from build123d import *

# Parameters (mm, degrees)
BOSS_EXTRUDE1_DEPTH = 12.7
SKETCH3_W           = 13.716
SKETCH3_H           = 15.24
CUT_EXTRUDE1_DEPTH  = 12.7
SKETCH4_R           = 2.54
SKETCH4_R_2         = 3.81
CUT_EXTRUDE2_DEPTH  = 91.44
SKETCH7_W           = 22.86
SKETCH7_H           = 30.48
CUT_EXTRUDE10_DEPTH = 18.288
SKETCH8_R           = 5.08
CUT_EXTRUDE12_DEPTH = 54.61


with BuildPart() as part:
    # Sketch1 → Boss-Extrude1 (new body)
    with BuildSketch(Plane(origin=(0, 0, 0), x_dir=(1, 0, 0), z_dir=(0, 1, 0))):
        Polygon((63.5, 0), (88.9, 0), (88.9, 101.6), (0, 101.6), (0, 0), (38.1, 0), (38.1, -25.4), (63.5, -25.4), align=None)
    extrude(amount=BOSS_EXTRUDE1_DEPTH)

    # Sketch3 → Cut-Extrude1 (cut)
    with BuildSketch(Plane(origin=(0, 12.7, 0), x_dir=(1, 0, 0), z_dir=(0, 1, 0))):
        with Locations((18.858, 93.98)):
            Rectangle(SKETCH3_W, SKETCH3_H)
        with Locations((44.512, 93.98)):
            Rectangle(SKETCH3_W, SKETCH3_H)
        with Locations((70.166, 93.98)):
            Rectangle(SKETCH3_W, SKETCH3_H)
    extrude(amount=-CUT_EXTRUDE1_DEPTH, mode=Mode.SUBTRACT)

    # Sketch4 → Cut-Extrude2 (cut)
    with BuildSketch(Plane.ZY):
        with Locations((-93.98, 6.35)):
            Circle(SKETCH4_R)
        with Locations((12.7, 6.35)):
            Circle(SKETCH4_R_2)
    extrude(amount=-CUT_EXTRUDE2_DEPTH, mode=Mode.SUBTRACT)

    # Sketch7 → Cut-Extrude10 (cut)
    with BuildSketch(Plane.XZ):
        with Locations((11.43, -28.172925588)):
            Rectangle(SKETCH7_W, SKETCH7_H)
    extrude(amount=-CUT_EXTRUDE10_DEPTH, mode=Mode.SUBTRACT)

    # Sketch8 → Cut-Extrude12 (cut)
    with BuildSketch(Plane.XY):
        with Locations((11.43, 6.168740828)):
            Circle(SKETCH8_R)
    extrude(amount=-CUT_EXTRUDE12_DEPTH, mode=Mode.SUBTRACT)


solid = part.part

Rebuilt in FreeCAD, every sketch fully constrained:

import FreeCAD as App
import Part
import Sketcher
Q = App.Units.Quantity


def add_polygon(sketch, points):
    """Adds a closed chain of lines whose ends are joined by coincident constraints."""
    first, n = sketch.GeometryCount, len(points)
    for a, b in zip(points, points[1:] + points[:1]):
        sketch.addGeometry(Part.LineSegment(App.Vector(*a, 0), App.Vector(*b, 0)), False)
    for i in range(n):
        sketch.addConstraint(Sketcher.Constraint("Coincident", first + i, 2, first + (i + 1) % n, 1))

doc = App.newDocument("Part")
body = doc.addObject("PartDesign::Body", "Body")

# Sketch on XZ plane
sketch1 = doc.addObject("Sketcher::SketchObject", "Sketch")
body.addObject(sketch1)
sketch1.AttachmentSupport = (doc.XZ_Plane, [""])
sketch1.MapMode = "FlatFace"
add_polygon(sketch1, [(64, 0), (89, 0), (89, -102), (0, -102), (0, 0), (38, 0), (38, 25), (64, 25)])  # lines 0-7
sketch1.addConstraint([
    Sketcher.Constraint("Horizontal", 0),
    Sketcher.Constraint("Vertical", 1),
    Sketcher.Constraint("Horizontal", 2),
    Sketcher.Constraint("Vertical", 3),
    Sketcher.Constraint("Horizontal", 4),
    Sketcher.Constraint("Vertical", 5),
    Sketcher.Constraint("Horizontal", 6),
    Sketcher.Constraint("Vertical", 7),
    Sketcher.Constraint("Coincident", 3, 2, -1, 1),
    Sketcher.Constraint("PointOnObject", 0, 2, -1),
    Sketcher.Constraint("Equal", 0, 6),
    Sketcher.Constraint("Equal", 6, 5),
    Sketcher.Constraint("DistanceX", 0, 1, 0, 2, Q("1 in")),
    Sketcher.Constraint("DistanceY", 1, 2, 1, 1, Q("4 in")),
    Sketcher.Constraint("DistanceX", 2, 2, 2, 1, Q("3.5 in")),
])
pad1 = doc.addObject("PartDesign::Pad", "Pad")
body.addObject(pad1)
pad1.Profile = sketch1
pad1.Length = Q("0.5 in")
pad1.Reversed = True

# Sketch on XZ plane
sketch2 = doc.addObject("Sketcher::SketchObject", "Sketch001")
body.addObject(sketch2)
sketch2.AttachmentSupport = (doc.XZ_Plane, [""])
sketch2.MapMode = "FlatFace"
sketch2.AttachmentOffset = App.Placement(App.Vector(0, 0, -0.5 * 25.4), App.Rotation())
add_polygon(sketch2, [(12, -102), (12, -86), (26, -86), (26, -102)])  # lines 0-3
add_polygon(sketch2, [(38, -102), (38, -86), (51, -86), (51, -102)])  # lines 4-7
add_polygon(sketch2, [(63, -102), (63, -86), (77, -86), (77, -102)])  # lines 8-11
sketch2.addConstraint([
    Sketcher.Constraint("Vertical", 0),
    Sketcher.Constraint("Horizontal", 1),
    Sketcher.Constraint("Vertical", 2),
    Sketcher.Constraint("Horizontal", 3),
    Sketcher.Constraint("Vertical", 4),
    Sketcher.Constraint("Horizontal", 5),
    Sketcher.Constraint("Vertical", 6),
    Sketcher.Constraint("Horizontal", 7),
    Sketcher.Constraint("Vertical", 8),
    Sketcher.Constraint("Horizontal", 9),
    Sketcher.Constraint("Vertical", 10),
    Sketcher.Constraint("Horizontal", 11),
    Sketcher.Constraint("Horizontal", 1, 2, 4, 2),
    Sketcher.Constraint("Horizontal", 3, 2, 6, 2),
    Sketcher.Constraint("Horizontal", 5, 2, 8, 2),
    Sketcher.Constraint("Horizontal", 7, 2, 10, 2),
    Sketcher.Constraint("Equal", 3, 5),
    Sketcher.Constraint("Equal", 7, 9),
    Sketcher.Constraint("DistanceY", 0, 1, 0, 2, Q("0.6 in")),
    Sketcher.Constraint("DistanceY", 2, 2, -1, 1, Q("4 in")),
    Sketcher.Constraint("DistanceX", 1, 1, 1, 2, Q("0.54 in")),
    Sketcher.Constraint("DistanceX", 1, 2, 4, 2, Q("0.47 in")),
    Sketcher.Constraint("DistanceX", 5, 2, 8, 2, Q("0.47 in")),
    Sketcher.Constraint("DistanceX", -1, 1, 0, 2, Q("12 mm")),
])
pocket1 = doc.addObject("PartDesign::Pocket", "Pocket")
body.addObject(pocket1)
pocket1.Profile = sketch2
pocket1.Length = Q("0.5 in")
pocket1.Reversed = True

# Sketch on YZ plane
sketch3 = doc.addObject("Sketcher::SketchObject", "Sketch002")
body.addObject(sketch3)
sketch3.AttachmentSupport = (doc.YZ_Plane, [""])
sketch3.MapMode = "FlatFace"
sketch3.addGeometry([
    Part.Circle(App.Vector(6.3, -94, 0), App.Vector(0, 0, 1), 2.5),
    Part.Circle(App.Vector(6.3, 12.7, 0), App.Vector(0, 0, 1), 3.8),
], False)
sketch3.addConstraint([
    Sketcher.Constraint("Vertical", 0, 3, 1, 3),
    Sketcher.Constraint("Diameter", 0, Q("0.2 in")),
    Sketcher.Constraint("Diameter", 1, Q("0.3 in")),
    Sketcher.Constraint("DistanceY", 0, 3, -1, 1, Q("3.7 in")),
    Sketcher.Constraint("DistanceY", -1, 1, 1, 3, Q("0.5 in")),
    Sketcher.Constraint("DistanceX", -1, 1, 0, 3, Q("0.25 in")),
])
pocket2 = doc.addObject("PartDesign::Pocket", "Pocket001")
body.addObject(pocket2)
pocket2.Profile = sketch3
pocket2.Length = Q("3.6 in")
pocket2.Reversed = True

# Sketch on XZ plane
sketch4 = doc.addObject("Sketcher::SketchObject", "Sketch003")
body.addObject(sketch4)
sketch4.AttachmentSupport = (doc.XZ_Plane, [""])
sketch4.MapMode = "FlatFace"
add_polygon(sketch4, [(0, -13), (0, -43), (23, -43), (23, -13)])  # lines 0-3
sketch4.addConstraint([
    Sketcher.Constraint("Vertical", 0),
    Sketcher.Constraint("Horizontal", 1),
    Sketcher.Constraint("Vertical", 2),
    Sketcher.Constraint("Horizontal", 3),
    Sketcher.Constraint("PointOnObject", 0, 2, -2),
    Sketcher.Constraint("DistanceX", 1, 1, 1, 2, Q("0.9 in")),
    Sketcher.Constraint("DistanceY", 0, 2, 0, 1, Q("1.2 in")),
    Sketcher.Constraint("DistanceY", 0, 2, -1, 1, Q("43.412926 mm")),
])
pocket3 = doc.addObject("PartDesign::Pocket", "Pocket002")
body.addObject(pocket3)
pocket3.Profile = sketch4
pocket3.Length = Q("0.72 in")

# Sketch on XY plane
sketch5 = doc.addObject("Sketcher::SketchObject", "Sketch004")
body.addObject(sketch5)
sketch5.AttachmentSupport = (doc.XY_Plane, [""])
sketch5.MapMode = "FlatFace"
sketch5.addGeometry(Part.Circle(App.Vector(11, 6, 0), App.Vector(0, 0, 1), 5), False)
sketch5.addConstraint([
    Sketcher.Constraint("Diameter", 0, Q("0.4 in")),
    Sketcher.Constraint("DistanceX", -1, 1, 0, 3, Q("0.45 in")),
    Sketcher.Constraint("DistanceY", -1, 1, 0, 3, Q("6.168741 mm")),
])
pocket4 = doc.addObject("PartDesign::Pocket", "Pocket003")
body.addObject(pocket4)
pocket4.Profile = sketch5
pocket4.Length = Q("2.15 in")

doc.recompute()
